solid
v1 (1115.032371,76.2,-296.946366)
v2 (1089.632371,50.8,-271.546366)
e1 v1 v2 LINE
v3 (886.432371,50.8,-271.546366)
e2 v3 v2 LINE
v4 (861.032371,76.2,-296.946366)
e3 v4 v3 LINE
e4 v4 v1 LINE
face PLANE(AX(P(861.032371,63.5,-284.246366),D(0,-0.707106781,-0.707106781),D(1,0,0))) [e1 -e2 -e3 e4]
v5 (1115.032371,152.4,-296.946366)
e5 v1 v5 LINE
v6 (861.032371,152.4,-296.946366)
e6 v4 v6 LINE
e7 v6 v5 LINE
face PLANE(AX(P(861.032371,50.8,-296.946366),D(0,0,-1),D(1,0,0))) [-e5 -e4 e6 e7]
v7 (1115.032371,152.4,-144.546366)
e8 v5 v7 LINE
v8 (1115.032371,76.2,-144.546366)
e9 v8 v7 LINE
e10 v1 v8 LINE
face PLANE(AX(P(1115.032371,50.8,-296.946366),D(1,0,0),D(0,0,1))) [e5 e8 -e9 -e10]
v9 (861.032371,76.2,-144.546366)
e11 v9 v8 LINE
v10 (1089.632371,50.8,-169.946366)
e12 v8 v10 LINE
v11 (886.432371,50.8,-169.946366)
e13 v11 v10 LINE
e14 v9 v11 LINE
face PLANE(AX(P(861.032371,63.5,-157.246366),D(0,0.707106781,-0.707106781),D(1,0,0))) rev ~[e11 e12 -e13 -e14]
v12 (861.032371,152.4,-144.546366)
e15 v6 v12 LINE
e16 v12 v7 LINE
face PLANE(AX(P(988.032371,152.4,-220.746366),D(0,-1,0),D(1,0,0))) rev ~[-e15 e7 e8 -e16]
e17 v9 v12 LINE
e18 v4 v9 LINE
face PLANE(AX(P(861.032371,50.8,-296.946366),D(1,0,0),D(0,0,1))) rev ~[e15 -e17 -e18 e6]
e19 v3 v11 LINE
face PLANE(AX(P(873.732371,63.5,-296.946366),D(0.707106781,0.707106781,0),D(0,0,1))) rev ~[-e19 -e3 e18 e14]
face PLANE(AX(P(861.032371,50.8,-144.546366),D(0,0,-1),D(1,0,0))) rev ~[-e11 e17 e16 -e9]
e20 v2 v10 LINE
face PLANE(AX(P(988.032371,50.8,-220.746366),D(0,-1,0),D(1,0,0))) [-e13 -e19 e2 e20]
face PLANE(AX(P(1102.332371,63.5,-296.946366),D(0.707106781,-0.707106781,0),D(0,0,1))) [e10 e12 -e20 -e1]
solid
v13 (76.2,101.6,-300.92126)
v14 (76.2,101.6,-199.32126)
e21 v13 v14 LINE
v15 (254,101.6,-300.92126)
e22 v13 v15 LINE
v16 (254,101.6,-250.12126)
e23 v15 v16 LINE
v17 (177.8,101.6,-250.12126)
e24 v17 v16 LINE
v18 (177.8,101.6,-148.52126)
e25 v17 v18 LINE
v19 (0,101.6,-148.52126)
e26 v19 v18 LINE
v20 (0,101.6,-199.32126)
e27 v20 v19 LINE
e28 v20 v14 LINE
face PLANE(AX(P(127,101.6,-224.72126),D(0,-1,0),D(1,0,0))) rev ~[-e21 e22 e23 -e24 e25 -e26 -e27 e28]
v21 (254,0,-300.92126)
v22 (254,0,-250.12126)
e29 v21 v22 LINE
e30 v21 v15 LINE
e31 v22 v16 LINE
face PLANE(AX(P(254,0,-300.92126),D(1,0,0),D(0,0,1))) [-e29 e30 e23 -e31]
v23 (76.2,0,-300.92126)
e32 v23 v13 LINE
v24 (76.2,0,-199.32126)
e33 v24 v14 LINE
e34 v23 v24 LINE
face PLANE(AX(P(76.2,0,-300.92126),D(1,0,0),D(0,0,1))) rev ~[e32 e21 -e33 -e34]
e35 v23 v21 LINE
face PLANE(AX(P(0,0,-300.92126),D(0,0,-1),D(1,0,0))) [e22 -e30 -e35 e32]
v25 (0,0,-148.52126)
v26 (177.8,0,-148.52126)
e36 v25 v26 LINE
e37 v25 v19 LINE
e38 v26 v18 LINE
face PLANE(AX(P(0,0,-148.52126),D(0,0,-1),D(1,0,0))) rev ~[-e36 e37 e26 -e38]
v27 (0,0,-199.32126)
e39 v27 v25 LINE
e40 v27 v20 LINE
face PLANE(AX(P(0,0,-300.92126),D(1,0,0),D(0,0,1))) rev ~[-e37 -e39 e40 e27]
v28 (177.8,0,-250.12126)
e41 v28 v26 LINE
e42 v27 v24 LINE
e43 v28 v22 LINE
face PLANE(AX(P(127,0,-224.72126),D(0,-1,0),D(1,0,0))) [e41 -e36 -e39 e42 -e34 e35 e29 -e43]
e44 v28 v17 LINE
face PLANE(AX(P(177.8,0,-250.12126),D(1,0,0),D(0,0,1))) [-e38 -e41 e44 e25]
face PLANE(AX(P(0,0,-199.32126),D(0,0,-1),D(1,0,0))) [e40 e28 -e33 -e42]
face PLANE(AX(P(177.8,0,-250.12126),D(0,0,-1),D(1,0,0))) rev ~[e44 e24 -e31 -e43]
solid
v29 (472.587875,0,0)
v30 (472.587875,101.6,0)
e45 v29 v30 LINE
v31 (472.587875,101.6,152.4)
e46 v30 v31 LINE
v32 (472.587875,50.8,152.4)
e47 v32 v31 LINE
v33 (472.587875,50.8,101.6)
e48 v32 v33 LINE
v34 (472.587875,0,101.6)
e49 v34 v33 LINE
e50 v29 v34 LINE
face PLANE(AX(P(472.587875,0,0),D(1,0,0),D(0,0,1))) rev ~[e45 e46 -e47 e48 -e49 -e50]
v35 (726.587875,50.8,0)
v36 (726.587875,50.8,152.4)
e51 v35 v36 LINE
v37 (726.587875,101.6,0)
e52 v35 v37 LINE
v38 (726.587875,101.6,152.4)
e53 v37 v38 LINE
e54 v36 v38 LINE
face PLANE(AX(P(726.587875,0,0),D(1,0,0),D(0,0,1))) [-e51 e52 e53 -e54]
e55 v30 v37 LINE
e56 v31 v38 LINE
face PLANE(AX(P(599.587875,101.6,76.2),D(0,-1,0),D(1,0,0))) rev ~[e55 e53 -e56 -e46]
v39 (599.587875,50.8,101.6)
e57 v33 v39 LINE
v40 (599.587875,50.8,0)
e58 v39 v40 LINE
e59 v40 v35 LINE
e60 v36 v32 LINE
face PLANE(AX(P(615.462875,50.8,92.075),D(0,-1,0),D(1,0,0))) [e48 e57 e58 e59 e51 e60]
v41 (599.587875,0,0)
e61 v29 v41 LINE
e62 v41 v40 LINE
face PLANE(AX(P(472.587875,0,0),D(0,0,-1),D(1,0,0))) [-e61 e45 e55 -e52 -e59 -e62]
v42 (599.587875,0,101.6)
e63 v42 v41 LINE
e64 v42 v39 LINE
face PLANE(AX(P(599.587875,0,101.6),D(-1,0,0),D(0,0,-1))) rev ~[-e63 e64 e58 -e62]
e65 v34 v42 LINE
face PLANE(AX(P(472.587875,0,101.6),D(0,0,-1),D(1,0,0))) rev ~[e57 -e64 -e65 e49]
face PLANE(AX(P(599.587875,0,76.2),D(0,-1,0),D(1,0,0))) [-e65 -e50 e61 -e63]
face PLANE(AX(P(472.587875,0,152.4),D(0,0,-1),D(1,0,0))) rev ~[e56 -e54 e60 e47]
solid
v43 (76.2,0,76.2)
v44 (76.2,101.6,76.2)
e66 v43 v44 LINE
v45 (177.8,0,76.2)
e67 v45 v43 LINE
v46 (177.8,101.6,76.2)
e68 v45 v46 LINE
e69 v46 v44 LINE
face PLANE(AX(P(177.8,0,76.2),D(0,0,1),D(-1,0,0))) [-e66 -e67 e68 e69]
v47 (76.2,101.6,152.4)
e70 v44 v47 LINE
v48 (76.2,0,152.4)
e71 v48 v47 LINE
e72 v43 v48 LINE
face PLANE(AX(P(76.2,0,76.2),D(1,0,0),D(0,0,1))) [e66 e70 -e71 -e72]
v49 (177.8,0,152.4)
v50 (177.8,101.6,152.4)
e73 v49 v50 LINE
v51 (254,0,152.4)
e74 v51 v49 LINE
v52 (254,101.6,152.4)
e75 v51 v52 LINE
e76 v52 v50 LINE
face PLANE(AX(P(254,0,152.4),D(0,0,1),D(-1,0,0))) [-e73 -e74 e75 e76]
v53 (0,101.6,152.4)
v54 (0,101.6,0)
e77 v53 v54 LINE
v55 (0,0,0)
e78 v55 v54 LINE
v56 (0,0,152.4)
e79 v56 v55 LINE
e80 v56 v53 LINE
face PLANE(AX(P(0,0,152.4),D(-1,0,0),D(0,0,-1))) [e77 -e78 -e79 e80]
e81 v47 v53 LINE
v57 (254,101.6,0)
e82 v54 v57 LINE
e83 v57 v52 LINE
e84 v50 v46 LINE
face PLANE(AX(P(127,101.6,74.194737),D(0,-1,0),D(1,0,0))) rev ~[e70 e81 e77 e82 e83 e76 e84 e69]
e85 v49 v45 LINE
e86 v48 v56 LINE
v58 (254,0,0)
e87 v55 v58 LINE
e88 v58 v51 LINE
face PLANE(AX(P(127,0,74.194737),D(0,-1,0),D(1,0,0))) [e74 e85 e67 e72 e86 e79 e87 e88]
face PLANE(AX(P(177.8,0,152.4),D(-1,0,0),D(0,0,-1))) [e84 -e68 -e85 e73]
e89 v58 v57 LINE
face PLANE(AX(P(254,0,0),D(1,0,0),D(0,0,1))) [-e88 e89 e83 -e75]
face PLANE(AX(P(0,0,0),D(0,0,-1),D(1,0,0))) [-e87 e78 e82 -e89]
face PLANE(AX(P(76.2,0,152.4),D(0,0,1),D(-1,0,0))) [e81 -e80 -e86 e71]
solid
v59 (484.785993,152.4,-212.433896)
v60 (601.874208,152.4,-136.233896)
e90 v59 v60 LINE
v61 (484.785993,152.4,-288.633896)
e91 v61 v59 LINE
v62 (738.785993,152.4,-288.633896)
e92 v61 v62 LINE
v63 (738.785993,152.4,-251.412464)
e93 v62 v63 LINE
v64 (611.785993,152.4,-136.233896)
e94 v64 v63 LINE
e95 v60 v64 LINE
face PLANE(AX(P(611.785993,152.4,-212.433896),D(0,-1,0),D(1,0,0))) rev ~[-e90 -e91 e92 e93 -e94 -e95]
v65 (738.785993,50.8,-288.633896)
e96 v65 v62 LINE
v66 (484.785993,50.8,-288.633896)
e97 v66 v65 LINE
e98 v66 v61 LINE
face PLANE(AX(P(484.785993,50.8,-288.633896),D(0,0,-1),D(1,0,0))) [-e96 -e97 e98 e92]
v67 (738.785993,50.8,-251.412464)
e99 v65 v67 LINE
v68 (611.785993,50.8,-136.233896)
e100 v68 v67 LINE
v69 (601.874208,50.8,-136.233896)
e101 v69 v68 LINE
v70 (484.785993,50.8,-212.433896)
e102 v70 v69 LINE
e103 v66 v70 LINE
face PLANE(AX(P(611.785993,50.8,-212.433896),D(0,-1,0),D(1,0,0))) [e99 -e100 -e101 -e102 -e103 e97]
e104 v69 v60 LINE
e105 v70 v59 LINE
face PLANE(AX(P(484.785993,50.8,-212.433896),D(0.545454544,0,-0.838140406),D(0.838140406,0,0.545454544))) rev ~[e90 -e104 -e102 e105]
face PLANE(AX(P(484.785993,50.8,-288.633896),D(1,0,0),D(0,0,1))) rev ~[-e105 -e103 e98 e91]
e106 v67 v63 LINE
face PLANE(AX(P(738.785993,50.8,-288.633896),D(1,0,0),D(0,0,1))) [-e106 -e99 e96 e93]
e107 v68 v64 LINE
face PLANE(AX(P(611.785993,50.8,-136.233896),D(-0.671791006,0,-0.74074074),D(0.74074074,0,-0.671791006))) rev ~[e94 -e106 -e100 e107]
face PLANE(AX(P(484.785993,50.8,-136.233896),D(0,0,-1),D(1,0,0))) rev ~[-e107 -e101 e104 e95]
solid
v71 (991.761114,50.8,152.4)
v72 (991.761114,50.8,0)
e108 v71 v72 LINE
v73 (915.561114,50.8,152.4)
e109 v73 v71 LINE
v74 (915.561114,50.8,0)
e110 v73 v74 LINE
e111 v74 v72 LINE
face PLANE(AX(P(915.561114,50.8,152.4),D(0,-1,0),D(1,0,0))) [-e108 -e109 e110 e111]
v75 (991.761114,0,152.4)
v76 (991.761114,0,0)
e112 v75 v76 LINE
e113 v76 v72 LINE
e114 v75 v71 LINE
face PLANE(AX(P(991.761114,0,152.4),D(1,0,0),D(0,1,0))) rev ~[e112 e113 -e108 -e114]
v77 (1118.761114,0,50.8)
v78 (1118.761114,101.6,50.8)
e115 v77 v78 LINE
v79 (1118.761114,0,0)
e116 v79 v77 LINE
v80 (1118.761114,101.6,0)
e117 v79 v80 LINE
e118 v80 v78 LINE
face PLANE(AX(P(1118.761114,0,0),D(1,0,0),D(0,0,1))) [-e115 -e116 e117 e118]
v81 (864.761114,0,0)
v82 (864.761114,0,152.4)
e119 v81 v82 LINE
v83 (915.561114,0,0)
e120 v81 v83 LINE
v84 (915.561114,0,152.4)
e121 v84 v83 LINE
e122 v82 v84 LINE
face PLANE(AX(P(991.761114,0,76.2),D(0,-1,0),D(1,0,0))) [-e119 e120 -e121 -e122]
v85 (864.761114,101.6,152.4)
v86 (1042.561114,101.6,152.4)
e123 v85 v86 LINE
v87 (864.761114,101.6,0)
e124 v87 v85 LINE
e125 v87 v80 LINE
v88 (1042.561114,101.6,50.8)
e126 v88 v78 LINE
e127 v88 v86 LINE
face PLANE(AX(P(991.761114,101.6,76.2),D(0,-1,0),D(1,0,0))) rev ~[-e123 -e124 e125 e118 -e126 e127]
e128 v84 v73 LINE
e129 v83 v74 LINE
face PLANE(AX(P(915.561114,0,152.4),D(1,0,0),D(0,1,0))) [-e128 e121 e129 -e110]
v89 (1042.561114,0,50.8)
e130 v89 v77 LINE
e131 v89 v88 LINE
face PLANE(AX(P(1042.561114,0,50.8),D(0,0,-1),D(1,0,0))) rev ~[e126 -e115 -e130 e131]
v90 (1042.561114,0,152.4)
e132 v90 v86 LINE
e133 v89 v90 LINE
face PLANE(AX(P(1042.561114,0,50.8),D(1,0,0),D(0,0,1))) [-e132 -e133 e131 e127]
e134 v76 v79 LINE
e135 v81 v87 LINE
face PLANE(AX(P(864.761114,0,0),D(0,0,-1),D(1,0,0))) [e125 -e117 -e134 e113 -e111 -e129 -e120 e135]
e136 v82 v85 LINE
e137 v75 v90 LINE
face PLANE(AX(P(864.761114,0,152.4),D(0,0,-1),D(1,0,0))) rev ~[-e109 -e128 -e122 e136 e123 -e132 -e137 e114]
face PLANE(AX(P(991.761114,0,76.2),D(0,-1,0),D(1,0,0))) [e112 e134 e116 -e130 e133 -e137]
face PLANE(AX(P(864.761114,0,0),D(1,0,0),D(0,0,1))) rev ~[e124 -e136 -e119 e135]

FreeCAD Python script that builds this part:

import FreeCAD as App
import Part
import Sketcher

V = App.Vector
Q = App.Units.Quantity


def edges_at(feature, points):
    """Names of the edges that pass closest to the given points."""
    edges = feature.Shape.Edges
    near = lambda p: min(range(len(edges)), key=lambda i: edges[i].distToShape(Part.Vertex(*p))[0])
    return sorted({f"Edge{near(p) + 1}" for p in points})

doc = App.newDocument("Part")
params = doc.addObject("Spreadsheet::Sheet", "Params")
for row, (alias, value) in enumerate([
    ("sketch1_width", "10 in"),
    ("sketch1_width2", "3 in"),
    ("sketch1_height", "6 in"),
    ("pad1_length", "4 in"),
    ("sketch2_width", "10 in"),
    ("sketch2_height", "6 in"),
    ("pad2_length", "4 in"),
    ("sketch3_width", "10 in"),
    ("sketch3_height", "2 in"),
    ("sketch3_height2", "4 in"),
    ("pocket1_length", "2 in"),
    ("sketch4_width", "10 in"),
    ("sketch4_height", "6 in"),
    ("pad3_length", "4 in"),
    ("sketch5_width", "3 in"),
    ("sketch5_height", "2 in"),
    ("pocket2_length", "6 in"),
    ("sketch6_width", "3 in"),
    ("sketch6_height", "4 in"),
    ("pocket3_length", "4 in"),
    ("sketch7_width", "10 in"),
    ("sketch7_height", "6 in"),
    ("pad4_length", "4 in"),
    ("sketch8_width", "3 in"),
    ("sketch8_height", "4 in"),
    ("pocket4_length", "4 in"),
    ("sketch9_width", "3 in"),
    ("sketch9_height", "4 in"),
    ("pocket5_length", "4 in"),
    ("sketch10_width", "10 in"),
    ("sketch10_height", "6 in"),
    ("pad5_length", "4 in"),
    ("sketch11_width", "5 in"),
    ("sketch11_height", "3 in"),
    ("sketch11_length", "5.5 in"),
    ("sketch11_length2", "6.75 in"),
    ("pocket6_length", "4 in"),
    ("sketch12_width", "10 in"),
    ("sketch12_height", "6 in"),
    ("pad6_length", "4 in"),
    ("chamfer_size", "1 in"),
], start=1):
    params.set(f"A{row}", alias)
    params.set(f"B{row}", "=" + value)
    params.setAlias(f"B{row}", alias)

body = doc.addObject("PartDesign::Body", "Body")

sketch1 = body.newObject("Sketcher::SketchObject", "Sketch")
sketch1.AttachmentSupport = (doc.getObject("XZ_Plane"), [""])
sketch1.MapMode = "FlatFace"
sketch1.addGeometry(Part.LineSegment(V(0, 152, 0), V(0, 0, 0)), False)
sketch1.addGeometry(Part.LineSegment(V(0, 0, 0), V(254, 0, 0)), False)
sketch1.addGeometry(Part.LineSegment(V(254, 0, 0), V(254, 152, 0)), False)
sketch1.addGeometry(Part.LineSegment(V(254, 152, 0), V(178, 152, 0)), False)
sketch1.addGeometry(Part.LineSegment(V(178, 152, 0), V(178, 76, 0)), False)
sketch1.addGeometry(Part.LineSegment(V(178, 76, 0), V(76, 76, 0)), False)
sketch1.addGeometry(Part.LineSegment(V(76, 76, 0), V(76, 152, 0)), False)
sketch1.addGeometry(Part.LineSegment(V(76, 152, 0), V(0, 152, 0)), False)
sketch1.addConstraint(Sketcher.Constraint("Coincident", 0, 2, 1, 1))
sketch1.addConstraint(Sketcher.Constraint("Coincident", 1, 2, 2, 1))
sketch1.addConstraint(Sketcher.Constraint("Coincident", 2, 2, 3, 1))
sketch1.addConstraint(Sketcher.Constraint("Coincident", 3, 2, 4, 1))
sketch1.addConstraint(Sketcher.Constraint("Coincident", 4, 2, 5, 1))
sketch1.addConstraint(Sketcher.Constraint("Coincident", 5, 2, 6, 1))
sketch1.addConstraint(Sketcher.Constraint("Coincident", 6, 2, 7, 1))
sketch1.addConstraint(Sketcher.Constraint("Coincident", 7, 2, 0, 1))
sketch1.addConstraint(Sketcher.Constraint("Vertical", 0))
sketch1.addConstraint(Sketcher.Constraint("Horizontal", 1))
sketch1.addConstraint(Sketcher.Constraint("Vertical", 2))
sketch1.addConstraint(Sketcher.Constraint("Horizontal", 3))
sketch1.addConstraint(Sketcher.Constraint("Vertical", 4))
sketch1.addConstraint(Sketcher.Constraint("Horizontal", 5))
sketch1.addConstraint(Sketcher.Constraint("Vertical", 6))
sketch1.addConstraint(Sketcher.Constraint("Horizontal", 7))
sketch1.addConstraint(Sketcher.Constraint("Coincident", 0, 2, -1, 1))
sketch1.addConstraint(Sketcher.Constraint("Horizontal", 3, 2, 6, 2))
sketch1.addConstraint(Sketcher.Constraint("Equal", 3, 7))
sketch1.addConstraint(Sketcher.Constraint("Equal", 7, 4))
sketch1.addConstraint(Sketcher.Constraint("DistanceX", 1, 1, 1, 2, Q("10 in")))
sketch1.addConstraint(Sketcher.Constraint("DistanceX", 3, 2, 3, 1, Q("3 in")))
sketch1.addConstraint(Sketcher.Constraint("DistanceY", 0, 2, 0, 1, Q("6 in")))
sketch1.setExpression("Constraints[20]", "Params.sketch1_width")
sketch1.setExpression("Constraints[21]", "Params.sketch1_width2")
sketch1.setExpression("Constraints[22]", "Params.sketch1_height")
pad1 = body.newObject("PartDesign::Pad", "Pad")
pad1.Profile = sketch1
pad1.setExpression("Length", "Params.pad1_length")
pad1.Reversed = True
body2 = doc.addObject("PartDesign::Body", "Body001")

sketch2 = body2.newObject("Sketcher::SketchObject", "Sketch001")
sketch2.AttachmentSupport = (doc.getObject("XZ_Plane001"), [""])
sketch2.MapMode = "FlatFace"
sketch2.addGeometry(Part.LineSegment(V(473, 152, 0), V(473, 0, 0)), False)
sketch2.addGeometry(Part.LineSegment(V(473, 0, 0), V(727, 0, 0)), False)
sketch2.addGeometry(Part.LineSegment(V(727, 0, 0), V(727, 152, 0)), False)
sketch2.addGeometry(Part.LineSegment(V(727, 152, 0), V(473, 152, 0)), False)
sketch2.addConstraint(Sketcher.Constraint("Coincident", 0, 2, 1, 1))
sketch2.addConstraint(Sketcher.Constraint("Coincident", 1, 2, 2, 1))
sketch2.addConstraint(Sketcher.Constraint("Coincident", 2, 2, 3, 1))
sketch2.addConstraint(Sketcher.Constraint("Coincident", 3, 2, 0, 1))
sketch2.addConstraint(Sketcher.Constraint("Vertical", 0))
sketch2.addConstraint(Sketcher.Constraint("Horizontal", 1))
sketch2.addConstraint(Sketcher.Constraint("Vertical", 2))
sketch2.addConstraint(Sketcher.Constraint("Horizontal", 3))
sketch2.addConstraint(Sketcher.Constraint("PointOnObject", 0, 2, -1))
sketch2.addConstraint(Sketcher.Constraint("DistanceX", 1, 1, 1, 2, Q("10 in")))
sketch2.addConstraint(Sketcher.Constraint("DistanceY", 0, 2, 0, 1, Q("6 in")))
sketch2.addConstraint(Sketcher.Constraint("DistanceX", -1, 1, 0, 2, Q("472.587875 mm")))
sketch2.setExpression("Constraints[9]", "Params.sketch2_width")
sketch2.setExpression("Constraints[10]", "Params.sketch2_height")
pad2 = body2.newObject("PartDesign::Pad", "Pad001")
pad2.Profile = sketch2
pad2.setExpression("Length", "Params.pad2_length")
pad2.Reversed = True

sketch3 = body2.newObject("Sketcher::SketchObject", "Sketch002")
sketch3.AttachmentSupport = (doc.getObject("XZ_Plane001"), [""])
sketch3.MapMode = "FlatFace"
sketch3.addGeometry(Part.LineSegment(V(727, 152, 0), V(473, 152, 0)), False)
sketch3.addGeometry(Part.LineSegment(V(473, 152, 0), V(473, 102, 0)), False)
sketch3.addGeometry(Part.LineSegment(V(473, 102, 0), V(600, 102, 0)), False)
sketch3.addGeometry(Part.LineSegment(V(600, 102, 0), V(600, 0, 0)), False)
sketch3.addGeometry(Part.LineSegment(V(600, 0, 0), V(727, 0, 0)), False)
sketch3.addGeometry(Part.LineSegment(V(727, 0, 0), V(727, 152, 0)), False)
sketch3.addConstraint(Sketcher.Constraint("Coincident", 0, 2, 1, 1))
sketch3.addConstraint(Sketcher.Constraint("Coincident", 1, 2, 2, 1))
sketch3.addConstraint(Sketcher.Constraint("Coincident", 2, 2, 3, 1))
sketch3.addConstraint(Sketcher.Constraint("Coincident", 3, 2, 4, 1))
sketch3.addConstraint(Sketcher.Constraint("Coincident", 4, 2, 5, 1))
sketch3.addConstraint(Sketcher.Constraint("Coincident", 5, 2, 0, 1))
sketch3.addConstraint(Sketcher.Constraint("Horizontal", 0))
sketch3.addConstraint(Sketcher.Constraint("Vertical", 1))
sketch3.addConstraint(Sketcher.Constraint("Horizontal", 2))
sketch3.addConstraint(Sketcher.Constraint("Vertical", 3))
sketch3.addConstraint(Sketcher.Constraint("Horizontal", 4))
sketch3.addConstraint(Sketcher.Constraint("Vertical", 5))
sketch3.addConstraint(Sketcher.Constraint("PointOnObject", 3, 2, -1))
sketch3.addConstraint(Sketcher.Constraint("Equal", 2, 4))
sketch3.addConstraint(Sketcher.Constraint("DistanceX", 0, 2, 0, 1, Q("10 in")))
sketch3.addConstraint(Sketcher.Constraint("DistanceY", 1, 2, 1, 1, Q("2 in")))
sketch3.addConstraint(Sketcher.Constraint("DistanceY", 3, 2, 3, 1, Q("4 in")))
sketch3.addConstraint(Sketcher.Constraint("DistanceX", -1, 1, 0, 2, Q("472.587875 mm")))
sketch3.setExpression("Constraints[14]", "Params.sketch3_width")
sketch3.setExpression("Constraints[15]", "Params.sketch3_height")
sketch3.setExpression("Constraints[16]", "Params.sketch3_height2")
pocket1 = body2.newObject("PartDesign::Pocket", "Pocket")
pocket1.Profile = sketch3
pocket1.setExpression("Length", "Params.pocket1_length")
body3 = doc.addObject("PartDesign::Body", "Body002")

sketch4 = body3.newObject("Sketcher::SketchObject", "Sketch003")
sketch4.AttachmentSupport = (doc.getObject("XZ_Plane002"), [""])
sketch4.MapMode = "FlatFace"
sketch4.addGeometry(Part.LineSegment(V(865, 152, 0), V(865, 0, 0)), False)
sketch4.addGeometry(Part.LineSegment(V(865, 0, 0), V(1119, 0, 0)), False)
sketch4.addGeometry(Part.LineSegment(V(1119, 0, 0), V(1119, 152, 0)), False)
sketch4.addGeometry(Part.LineSegment(V(1119, 152, 0), V(865, 152, 0)), False)
sketch4.addConstraint(Sketcher.Constraint("Coincident", 0, 2, 1, 1))
sketch4.addConstraint(Sketcher.Constraint("Coincident", 1, 2, 2, 1))
sketch4.addConstraint(Sketcher.Constraint("Coincident", 2, 2, 3, 1))
sketch4.addConstraint(Sketcher.Constraint("Coincident", 3, 2, 0, 1))
sketch4.addConstraint(Sketcher.Constraint("Vertical", 0))
sketch4.addConstraint(Sketcher.Constraint("Horizontal", 1))
sketch4.addConstraint(Sketcher.Constraint("Vertical", 2))
sketch4.addConstraint(Sketcher.Constraint("Horizontal", 3))
sketch4.addConstraint(Sketcher.Constraint("PointOnObject", 0, 2, -1))
sketch4.addConstraint(Sketcher.Constraint("DistanceX", 1, 1, 1, 2, Q("10 in")))
sketch4.addConstraint(Sketcher.Constraint("DistanceY", 0, 2, 0, 1, Q("6 in")))
sketch4.addConstraint(Sketcher.Constraint("DistanceX", -1, 1, 0, 2, Q("864.761114 mm")))
sketch4.setExpression("Constraints[9]", "Params.sketch4_width")
sketch4.setExpression("Constraints[10]", "Params.sketch4_height")
pad3 = body3.newObject("PartDesign::Pad", "Pad002")
pad3.Profile = sketch4
pad3.setExpression("Length", "Params.pad3_length")
pad3.Reversed = True

sketch5 = body3.newObject("Sketcher::SketchObject", "Sketch004")
sketch5.AttachmentSupport = (doc.getObject("XY_Plane002"), [""])
sketch5.MapMode = "FlatFace"
sketch5.AttachmentOffset = App.Placement(V(0, 0, 6 * 25.4), App.Rotation())
sketch5.addGeometry(Part.LineSegment(V(916, 51, 0), V(916, 0, 0)), False)
sketch5.addGeometry(Part.LineSegment(V(916, 0, 0), V(992, 0, 0)), False)
sketch5.addGeometry(Part.LineSegment(V(992, 0, 0), V(992, 51, 0)), False)
sketch5.addGeometry(Part.LineSegment(V(992, 51, 0), V(916, 51, 0)), False)
sketch5.addConstraint(Sketcher.Constraint("Coincident", 0, 2, 1, 1))
sketch5.addConstraint(Sketcher.Constraint("Coincident", 1, 2, 2, 1))
sketch5.addConstraint(Sketcher.Constraint("Coincident", 2, 2, 3, 1))
sketch5.addConstraint(Sketcher.Constraint("Coincident", 3, 2, 0, 1))
sketch5.addConstraint(Sketcher.Constraint("Vertical", 0))
sketch5.addConstraint(Sketcher.Constraint("Horizontal", 1))
sketch5.addConstraint(Sketcher.Constraint("Vertical", 2))
sketch5.addConstraint(Sketcher.Constraint("Horizontal", 3))
sketch5.addConstraint(Sketcher.Constraint("PointOnObject", 0, 2, -1))
sketch5.addConstraint(Sketcher.Constraint("DistanceX", 1, 1, 1, 2, Q("3 in")))
sketch5.addConstraint(Sketcher.Constraint("DistanceY", 0, 2, 0, 1, Q("2 in")))
sketch5.addConstraint(Sketcher.Constraint("DistanceX", -1, 1, 0, 2, Q("915.561114 mm")))
sketch5.setExpression("Constraints[9]", "Params.sketch5_width")
sketch5.setExpression("Constraints[10]", "Params.sketch5_height")
pocket2 = body3.newObject("PartDesign::Pocket", "Pocket001")
pocket2.Profile = sketch5
pocket2.setExpression("Length", "Params.pocket2_length")

sketch6 = body3.newObject("Sketcher::SketchObject", "Sketch005")
sketch6.AttachmentSupport = (doc.getObject("XZ_Plane002"), [""])
sketch6.MapMode = "FlatFace"
sketch6.addGeometry(Part.LineSegment(V(1043, 152, 0), V(1043, 51, 0)), False)
sketch6.addGeometry(Part.LineSegment(V(1043, 51, 0), V(1119, 51, 0)), False)
sketch6.addGeometry(Part.LineSegment(V(1119, 51, 0), V(1119, 152, 0)), False)
sketch6.addGeometry(Part.LineSegment(V(1119, 152, 0), V(1043, 152, 0)), False)
sketch6.addConstraint(Sketcher.Constraint("Coincident", 0, 2, 1, 1))
sketch6.addConstraint(Sketcher.Constraint("Coincident", 1, 2, 2, 1))
sketch6.addConstraint(Sketcher.Constraint("Coincident", 2, 2, 3, 1))
sketch6.addConstraint(Sketcher.Constraint("Coincident", 3, 2, 0, 1))
sketch6.addConstraint(Sketcher.Constraint("Vertical", 0))
sketch6.addConstraint(Sketcher.Constraint("Horizontal", 1))
sketch6.addConstraint(Sketcher.Constraint("Vertical", 2))
sketch6.addConstraint(Sketcher.Constraint("Horizontal", 3))
sketch6.addConstraint(Sketcher.Constraint("DistanceX", 1, 1, 1, 2, Q("3 in")))
sketch6.addConstraint(Sketcher.Constraint("DistanceY", 0, 2, 0, 1, Q("4 in")))
sketch6.addConstraint(Sketcher.Constraint("DistanceY", -1, 1, 0, 2, Q("2 in")))
sketch6.addConstraint(Sketcher.Constraint("DistanceX", -1, 1, 0, 2, Q("1042.561114 mm")))
sketch6.setExpression("Constraints[8]", "Params.sketch6_width")
sketch6.setExpression("Constraints[9]", "Params.sketch6_height")
pocket3 = body3.newObject("PartDesign::Pocket", "Pocket002")
pocket3.Profile = sketch6
pocket3.setExpression("Length", "Params.pocket3_length")
body4 = doc.addObject("PartDesign::Body", "Body003")

sketch7 = body4.newObject("Sketcher::SketchObject", "Sketch006")
sketch7.AttachmentSupport = (doc.getObject("XZ_Plane003"), [""])
sketch7.MapMode = "FlatFace"
sketch7.addGeometry(Part.LineSegment(V(0, -149, 0), V(0, -301, 0)), False)
sketch7.addGeometry(Part.LineSegment(V(0, -301, 0), V(254, -301, 0)), False)
sketch7.addGeometry(Part.LineSegment(V(254, -301, 0), V(254, -149, 0)), False)
sketch7.addGeometry(Part.LineSegment(V(254, -149, 0), V(0, -149, 0)), False)
sketch7.addConstraint(Sketcher.Constraint("Coincident", 0, 2, 1, 1))
sketch7.addConstraint(Sketcher.Constraint("Coincident", 1, 2, 2, 1))
sketch7.addConstraint(Sketcher.Constraint("Coincident", 2, 2, 3, 1))
sketch7.addConstraint(Sketcher.Constraint("Coincident", 3, 2, 0, 1))
sketch7.addConstraint(Sketcher.Constraint("Vertical", 0))
sketch7.addConstraint(Sketcher.Constraint("Horizontal", 1))
sketch7.addConstraint(Sketcher.Constraint("Vertical", 2))
sketch7.addConstraint(Sketcher.Constraint("Horizontal", 3))
sketch7.addConstraint(Sketcher.Constraint("PointOnObject", 0, 2, -2))
sketch7.addConstraint(Sketcher.Constraint("DistanceX", 1, 1, 1, 2, Q("10 in")))
sketch7.addConstraint(Sketcher.Constraint("DistanceY", 0, 2, 0, 1, Q("6 in")))
sketch7.addConstraint(Sketcher.Constraint("DistanceY", 0, 2, -1, 1, Q("300.92126 mm")))
sketch7.setExpression("Constraints[9]", "Params.sketch7_width")
sketch7.setExpression("Constraints[10]", "Params.sketch7_height")
pad4 = body4.newObject("PartDesign::Pad", "Pad003")
pad4.Profile = sketch7
pad4.setExpression("Length", "Params.pad4_length")
pad4.Reversed = True

sketch8 = body4.newObject("Sketcher::SketchObject", "Sketch007")
sketch8.AttachmentSupport = (doc.getObject("XZ_Plane003"), [""])
sketch8.MapMode = "FlatFace"
sketch8.addGeometry(Part.LineSegment(V(0, -199, 0), V(0, -301, 0)), False)
sketch8.addGeometry(Part.LineSegment(V(0, -301, 0), V(76, -301, 0)), False)
sketch8.addGeometry(Part.LineSegment(V(76, -301, 0), V(76, -199, 0)), False)
sketch8.addGeometry(Part.LineSegment(V(76, -199, 0), V(0, -199, 0)), False)
sketch8.addConstraint(Sketcher.Constraint("Coincident", 0, 2, 1, 1))
sketch8.addConstraint(Sketcher.Constraint("Coincident", 1, 2, 2, 1))
sketch8.addConstraint(Sketcher.Constraint("Coincident", 2, 2, 3, 1))
sketch8.addConstraint(Sketcher.Constraint("Coincident", 3, 2, 0, 1))
sketch8.addConstraint(Sketcher.Constraint("Vertical", 0))
sketch8.addConstraint(Sketcher.Constraint("Horizontal", 1))
sketch8.addConstraint(Sketcher.Constraint("Vertical", 2))
sketch8.addConstraint(Sketcher.Constraint("Horizontal", 3))
sketch8.addConstraint(Sketcher.Constraint("PointOnObject", 0, 2, -2))
sketch8.addConstraint(Sketcher.Constraint("DistanceX", 1, 1, 1, 2, Q("3 in")))
sketch8.addConstraint(Sketcher.Constraint("DistanceY", 0, 2, 0, 1, Q("4 in")))
sketch8.addConstraint(Sketcher.Constraint("DistanceY", 0, 2, -1, 1, Q("300.92126 mm")))
sketch8.setExpression("Constraints[9]", "Params.sketch8_width")
sketch8.setExpression("Constraints[10]", "Params.sketch8_height")
pocket4 = body4.newObject("PartDesign::Pocket", "Pocket003")
pocket4.Profile = sketch8
pocket4.setExpression("Length", "Params.pocket4_length")

sketch9 = body4.newObject("Sketcher::SketchObject", "Sketch008")
sketch9.AttachmentSupport = (doc.getObject("XZ_Plane003"), [""])
sketch9.MapMode = "FlatFace"
sketch9.addGeometry(Part.LineSegment(V(178, -149, 0), V(178, -250, 0)), False)
sketch9.addGeometry(Part.LineSegment(V(178, -250, 0), V(254, -250, 0)), False)
sketch9.addGeometry(Part.LineSegment(V(254, -250, 0), V(254, -149, 0)), False)
sketch9.addGeometry(Part.LineSegment(V(254, -149, 0), V(178, -149, 0)), False)
sketch9.addConstraint(Sketcher.Constraint("Coincident", 0, 2, 1, 1))
sketch9.addConstraint(Sketcher.Constraint("Coincident", 1, 2, 2, 1))
sketch9.addConstraint(Sketcher.Constraint("Coincident", 2, 2, 3, 1))
sketch9.addConstraint(Sketcher.Constraint("Coincident", 3, 2, 0, 1))
sketch9.addConstraint(Sketcher.Constraint("Vertical", 0))
sketch9.addConstraint(Sketcher.Constraint("Horizontal", 1))
sketch9.addConstraint(Sketcher.Constraint("Vertical", 2))
sketch9.addConstraint(Sketcher.Constraint("Horizontal", 3))
sketch9.addConstraint(Sketcher.Constraint("DistanceX", 1, 1, 1, 2, Q("3 in")))
sketch9.addConstraint(Sketcher.Constraint("DistanceY", 0, 2, 0, 1, Q("4 in")))
sketch9.addConstraint(Sketcher.Constraint("DistanceX", -1, 1, 0, 2, Q("7 in")))
sketch9.addConstraint(Sketcher.Constraint("DistanceY", 0, 2, -1, 1, Q("250.12126 mm")))
sketch9.setExpression("Constraints[8]", "Params.sketch9_width")
sketch9.setExpression("Constraints[9]", "Params.sketch9_height")
pocket5 = body4.newObject("PartDesign::Pocket", "Pocket004")
pocket5.Profile = sketch9
pocket5.setExpression("Length", "Params.pocket5_length")
body5 = doc.addObject("PartDesign::Body", "Body004")

sketch10 = body5.newObject("Sketcher::SketchObject", "Sketch009")
sketch10.AttachmentSupport = (doc.getObject("XZ_Plane004"), [""])
sketch10.MapMode = "FlatFace"
sketch10.AttachmentOffset = App.Placement(V(0, 0, -2 * 25.4), App.Rotation())
sketch10.addGeometry(Part.LineSegment(V(485, -136, 0), V(485, -289, 0)), False)
sketch10.addGeometry(Part.LineSegment(V(485, -289, 0), V(739, -289, 0)), False)
sketch10.addGeometry(Part.LineSegment(V(739, -289, 0), V(739, -136, 0)), False)
sketch10.addGeometry(Part.LineSegment(V(739, -136, 0), V(485, -136, 0)), False)
sketch10.addConstraint(Sketcher.Constraint("Coincident", 0, 2, 1, 1))
sketch10.addConstraint(Sketcher.Constraint("Coincident", 1, 2, 2, 1))
sketch10.addConstraint(Sketcher.Constraint("Coincident", 2, 2, 3, 1))
sketch10.addConstraint(Sketcher.Constraint("Coincident", 3, 2, 0, 1))
sketch10.addConstraint(Sketcher.Constraint("Vertical", 0))
sketch10.addConstraint(Sketcher.Constraint("Horizontal", 1))
sketch10.addConstraint(Sketcher.Constraint("Vertical", 2))
sketch10.addConstraint(Sketcher.Constraint("Horizontal", 3))
sketch10.addConstraint(Sketcher.Constraint("DistanceX", 1, 1, 1, 2, Q("10 in")))
sketch10.addConstraint(Sketcher.Constraint("DistanceY", 0, 2, 0, 1, Q("6 in")))
sketch10.addConstraint(Sketcher.Constraint("DistanceX", -1, 1, 0, 2, Q("484.785993 mm")))
sketch10.addConstraint(Sketcher.Constraint("DistanceY", 0, 2, -1, 1, Q("288.633896 mm")))
sketch10.setExpression("Constraints[8]", "Params.sketch10_width")
sketch10.setExpression("Constraints[9]", "Params.sketch10_height")
pad5 = body5.newObject("PartDesign::Pad", "Pad004")
pad5.Profile = sketch10
pad5.setExpression("Length", "Params.pad5_length")
pad5.Reversed = True

sketch11 = body5.newObject("Sketcher::SketchObject", "Sketch010")
sketch11.AttachmentSupport = (doc.getObject("XZ_Plane004"), [""])
sketch11.MapMode = "FlatFace"
sketch11.AttachmentOffset = App.Placement(V(0, 0, -2 * 25.4), App.Rotation())
sketch11.addGeometry(Part.LineSegment(V(485, -136, 0), V(485, -212, 0)), False)
sketch11.addGeometry(Part.LineSegment(V(485, -212, 0), V(602, -136, 0)), False)
sketch11.addGeometry(Part.LineSegment(V(602, -136, 0), V(485, -136, 0)), False)
sketch11.addGeometry(Part.LineSegment(V(739, -136, 0), V(612, -136, 0)), False)
sketch11.addGeometry(Part.LineSegment(V(612, -136, 0), V(739, -251, 0)), False)
sketch11.addGeometry(Part.LineSegment(V(739, -251, 0), V(739, -136, 0)), False)
sketch11.addConstraint(Sketcher.Constraint("Coincident", 0, 2, 1, 1))
sketch11.addConstraint(Sketcher.Constraint("Coincident", 1, 2, 2, 1))
sketch11.addConstraint(Sketcher.Constraint("Coincident", 2, 2, 0, 1))
sketch11.addConstraint(Sketcher.Constraint("Coincident", 3, 2, 4, 1))
sketch11.addConstraint(Sketcher.Constraint("Coincident", 4, 2, 5, 1))
sketch11.addConstraint(Sketcher.Constraint("Coincident", 5, 2, 3, 1))
sketch11.addConstraint(Sketcher.Constraint("Vertical", 0))
sketch11.addConstraint(Sketcher.Constraint("Horizontal", 2))
sketch11.addConstraint(Sketcher.Constraint("Horizontal", 3))
sketch11.addConstraint(Sketcher.Constraint("Vertical", 5))
sketch11.addConstraint(Sketcher.Constraint("Horizontal", 2, 2, 3, 2))
sketch11.addConstraint(Sketcher.Constraint("DistanceX", 3, 2, 3, 1, Q("5 in")))
sketch11.addConstraint(Sketcher.Constraint("DistanceY", 0, 2, 0, 1, Q("3 in")))
sketch11.addConstraint(Sketcher.Constraint("DistanceX", 2, 2, 3, 2, Q("5 in")))
sketch11.addConstraint(Sketcher.Constraint("Distance", 1, Q("5.5 in")))
sketch11.addConstraint(Sketcher.Constraint("Distance", 4, Q("6.75 in")))
sketch11.addConstraint(Sketcher.Constraint("DistanceX", -1, 1, 1, 2, Q("601.874208 mm")))
sketch11.addConstraint(Sketcher.Constraint("DistanceY", 0, 2, -1, 1, Q("212.433896 mm")))
sketch11.setExpression("Constraints[11]", "Params.sketch11_width")
sketch11.setExpression("Constraints[12]", "Params.sketch11_height")
sketch11.setExpression("Constraints[14]", "Params.sketch11_length")
sketch11.setExpression("Constraints[15]", "Params.sketch11_length2")
pocket6 = body5.newObject("PartDesign::Pocket", "Pocket005")
pocket6.Profile = sketch11
pocket6.setExpression("Length", "Params.pocket6_length")
body6 = doc.addObject("PartDesign::Body", "Body005")

sketch12 = body6.newObject("Sketcher::SketchObject", "Sketch011")
sketch12.AttachmentSupport = (doc.getObject("XZ_Plane005"), [""])
sketch12.MapMode = "FlatFace"
sketch12.AttachmentOffset = App.Placement(V(0, 0, -2 * 25.4), App.Rotation())
sketch12.addGeometry(Part.LineSegment(V(861, -145, 0), V(861, -297, 0)), False)
sketch12.addGeometry(Part.LineSegment(V(861, -297, 0), V(1115, -297, 0)), False)
sketch12.addGeometry(Part.LineSegment(V(1115, -297, 0), V(1115, -145, 0)), False)
sketch12.addGeometry(Part.LineSegment(V(1115, -145, 0), V(861, -145, 0)), False)
sketch12.addConstraint(Sketcher.Constraint("Coincident", 0, 2, 1, 1))
sketch12.addConstraint(Sketcher.Constraint("Coincident", 1, 2, 2, 1))
sketch12.addConstraint(Sketcher.Constraint("Coincident", 2, 2, 3, 1))
sketch12.addConstraint(Sketcher.Constraint("Coincident", 3, 2, 0, 1))
sketch12.addConstraint(Sketcher.Constraint("Vertical", 0))
sketch12.addConstraint(Sketcher.Constraint("Horizontal", 1))
sketch12.addConstraint(Sketcher.Constraint("Vertical", 2))
sketch12.addConstraint(Sketcher.Constraint("Horizontal", 3))
sketch12.addConstraint(Sketcher.Constraint("DistanceX", 1, 1, 1, 2, Q("10 in")))
sketch12.addConstraint(Sketcher.Constraint("DistanceY", 0, 2, 0, 1, Q("6 in")))
sketch12.addConstraint(Sketcher.Constraint("DistanceX", -1, 1, 0, 2, Q("861.032371 mm")))
sketch12.addConstraint(Sketcher.Constraint("DistanceY", 0, 2, -1, 1, Q("296.946366 mm")))
sketch12.setExpression("Constraints[8]", "Params.sketch12_width")
sketch12.setExpression("Constraints[9]", "Params.sketch12_height")
pad6 = body6.newObject("PartDesign::Pad", "Pad005")
pad6.Profile = sketch12
pad6.setExpression("Length", "Params.pad6_length")
pad6.Reversed = True
doc.recompute()

chamfer = body6.newObject("PartDesign::Chamfer", "Chamfer")
chamfer.Base = (pad6, edges_at(pad6, [
    (988.032, 50.8, -144.546),
    (861.032, 50.8, -220.746),
    (988.032, 50.8, -296.946),
    (1115.032, 50.8, -220.746),
]))
chamfer.setExpression("Size", "Params.chamfer_size")

doc.recompute()
